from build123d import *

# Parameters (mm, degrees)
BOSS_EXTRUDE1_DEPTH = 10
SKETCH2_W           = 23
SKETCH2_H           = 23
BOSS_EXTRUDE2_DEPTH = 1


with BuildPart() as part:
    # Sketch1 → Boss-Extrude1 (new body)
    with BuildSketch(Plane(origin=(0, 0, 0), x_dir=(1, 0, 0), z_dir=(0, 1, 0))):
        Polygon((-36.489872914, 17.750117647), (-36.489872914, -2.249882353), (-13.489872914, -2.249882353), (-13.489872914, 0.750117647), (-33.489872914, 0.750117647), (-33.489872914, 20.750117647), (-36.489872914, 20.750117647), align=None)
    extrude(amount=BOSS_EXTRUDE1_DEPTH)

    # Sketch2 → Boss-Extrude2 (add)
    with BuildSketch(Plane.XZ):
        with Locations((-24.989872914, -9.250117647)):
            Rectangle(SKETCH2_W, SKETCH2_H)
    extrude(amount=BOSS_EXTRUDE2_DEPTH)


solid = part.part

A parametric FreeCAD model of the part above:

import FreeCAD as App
import Part
import Sketcher
Q = App.Units.Quantity

doc = App.newDocument("Part")
body = doc.addObject("PartDesign::Body", "Body")

# Sketch on XZ plane
sketch1 = doc.addObject("Sketcher::SketchObject", "Sketch")
body.addObject(sketch1)
sketch1.AttachmentSupport = (doc.XZ_Plane, [""])
sketch1.MapMode = "FlatFace"
sketch1.addGeometry([
    Part.LineSegment(App.Vector(-36.489873, 2.249882, 0), App.Vector(-13.489873, 2.249882, 0)),  # 0
    Part.LineSegment(App.Vector(-13.489873, 2.249882, 0), App.Vector(-13.489873, -0.750118, 0)),  # 1
    Part.LineSegment(App.Vector(-13.489873, -0.750118, 0), App.Vector(-33.489873, -0.750118, 0)),  # 2
    Part.LineSegment(App.Vector(-33.489873, -0.750118, 0), App.Vector(-33.489873, -20.750118, 0)),  # 3
    Part.LineSegment(App.Vector(-33.489873, -20.750118, 0), App.Vector(-36.489873, -20.750118, 0)),  # 4
    Part.LineSegment(App.Vector(-36.489873, -20.750118, 0), App.Vector(-36.489873, 2.249882, 0)),  # 5
], False)
sketch1.addConstraint([
    Sketcher.Constraint("Coincident", 0, 2, 1, 1),
    Sketcher.Constraint("Coincident", 1, 2, 2, 1),
    Sketcher.Constraint("Coincident", 2, 2, 3, 1),
    Sketcher.Constraint("Coincident", 3, 2, 4, 1),
    Sketcher.Constraint("Coincident", 4, 2, 5, 1),
    Sketcher.Constraint("Coincident", 5, 2, 0, 1),
    Sketcher.Constraint("Horizontal", 0),
    Sketcher.Constraint("Vertical", 1),
    Sketcher.Constraint("Horizontal", 2),
    Sketcher.Constraint("Vertical", 3),
    Sketcher.Constraint("Horizontal", 4),
    Sketcher.Constraint("Vertical", 5),
    Sketcher.Constraint("Equal", 4, 1),
    Sketcher.Constraint("Equal", 2, 3),
    Sketcher.Constraint("DistanceX", 0, 1, 0, 2, Q("23 mm")),
    Sketcher.Constraint("DistanceX", 2, 2, 2, 1, Q("20 mm")),
    Sketcher.Constraint("DistanceX", 0, 2, -1, 1, Q("13.489873 mm")),
    Sketcher.Constraint("DistanceY", -1, 1, 0, 2, Q("2.249882 mm")),
])
pad1 = doc.addObject("PartDesign::Pad", "Pad")
body.addObject(pad1)
pad1.Profile = sketch1
pad1.Length = 10
pad1.Reversed = True

# Sketch on XZ plane
sketch2 = doc.addObject("Sketcher::SketchObject", "Sketch001")
body.addObject(sketch2)
sketch2.AttachmentSupport = (doc.XZ_Plane, [""])
sketch2.MapMode = "FlatFace"
sketch2.addGeometry([
    Part.LineSegment(App.Vector(-36.489873, 2.249882, 0), App.Vector(-36.489873, -20.750118, 0)),
    Part.LineSegment(App.Vector(-36.489873, -20.750118, 0), App.Vector(-13.489873, -20.750118, 0)),
    Part.LineSegment(App.Vector(-13.489873, -20.750118, 0), App.Vector(-13.489873, 2.249882, 0)),
    Part.LineSegment(App.Vector(-13.489873, 2.249882, 0), App.Vector(-36.489873, 2.249882, 0)),
], False)
sketch2.addConstraint([
    Sketcher.Constraint("Coincident", 0, 2, 1, 1),
    Sketcher.Constraint("Coincident", 1, 2, 2, 1),
    Sketcher.Constraint("Coincident", 2, 2, 3, 1),
    Sketcher.Constraint("Coincident", 3, 2, 0, 1),
    Sketcher.Constraint("Vertical", 0),
    Sketcher.Constraint("Horizontal", 1),
    Sketcher.Constraint("Vertical", 2),
    Sketcher.Constraint("Horizontal", 3),
    Sketcher.Constraint("Equal", 3, 0),
    Sketcher.Constraint("DistanceX", 1, 1, 1, 2, Q("23 mm")),
    Sketcher.Constraint("DistanceX", 0, 2, -1, 1, Q("36.489873 mm")),
    Sketcher.Constraint("DistanceY", 0, 2, -1, 1, Q("20.750118 mm")),
])
pad2 = doc.addObject("PartDesign::Pad", "Pad001")
body.addObject(pad2)
pad2.Profile = sketch2
pad2.Length = 1

doc.recompute()
